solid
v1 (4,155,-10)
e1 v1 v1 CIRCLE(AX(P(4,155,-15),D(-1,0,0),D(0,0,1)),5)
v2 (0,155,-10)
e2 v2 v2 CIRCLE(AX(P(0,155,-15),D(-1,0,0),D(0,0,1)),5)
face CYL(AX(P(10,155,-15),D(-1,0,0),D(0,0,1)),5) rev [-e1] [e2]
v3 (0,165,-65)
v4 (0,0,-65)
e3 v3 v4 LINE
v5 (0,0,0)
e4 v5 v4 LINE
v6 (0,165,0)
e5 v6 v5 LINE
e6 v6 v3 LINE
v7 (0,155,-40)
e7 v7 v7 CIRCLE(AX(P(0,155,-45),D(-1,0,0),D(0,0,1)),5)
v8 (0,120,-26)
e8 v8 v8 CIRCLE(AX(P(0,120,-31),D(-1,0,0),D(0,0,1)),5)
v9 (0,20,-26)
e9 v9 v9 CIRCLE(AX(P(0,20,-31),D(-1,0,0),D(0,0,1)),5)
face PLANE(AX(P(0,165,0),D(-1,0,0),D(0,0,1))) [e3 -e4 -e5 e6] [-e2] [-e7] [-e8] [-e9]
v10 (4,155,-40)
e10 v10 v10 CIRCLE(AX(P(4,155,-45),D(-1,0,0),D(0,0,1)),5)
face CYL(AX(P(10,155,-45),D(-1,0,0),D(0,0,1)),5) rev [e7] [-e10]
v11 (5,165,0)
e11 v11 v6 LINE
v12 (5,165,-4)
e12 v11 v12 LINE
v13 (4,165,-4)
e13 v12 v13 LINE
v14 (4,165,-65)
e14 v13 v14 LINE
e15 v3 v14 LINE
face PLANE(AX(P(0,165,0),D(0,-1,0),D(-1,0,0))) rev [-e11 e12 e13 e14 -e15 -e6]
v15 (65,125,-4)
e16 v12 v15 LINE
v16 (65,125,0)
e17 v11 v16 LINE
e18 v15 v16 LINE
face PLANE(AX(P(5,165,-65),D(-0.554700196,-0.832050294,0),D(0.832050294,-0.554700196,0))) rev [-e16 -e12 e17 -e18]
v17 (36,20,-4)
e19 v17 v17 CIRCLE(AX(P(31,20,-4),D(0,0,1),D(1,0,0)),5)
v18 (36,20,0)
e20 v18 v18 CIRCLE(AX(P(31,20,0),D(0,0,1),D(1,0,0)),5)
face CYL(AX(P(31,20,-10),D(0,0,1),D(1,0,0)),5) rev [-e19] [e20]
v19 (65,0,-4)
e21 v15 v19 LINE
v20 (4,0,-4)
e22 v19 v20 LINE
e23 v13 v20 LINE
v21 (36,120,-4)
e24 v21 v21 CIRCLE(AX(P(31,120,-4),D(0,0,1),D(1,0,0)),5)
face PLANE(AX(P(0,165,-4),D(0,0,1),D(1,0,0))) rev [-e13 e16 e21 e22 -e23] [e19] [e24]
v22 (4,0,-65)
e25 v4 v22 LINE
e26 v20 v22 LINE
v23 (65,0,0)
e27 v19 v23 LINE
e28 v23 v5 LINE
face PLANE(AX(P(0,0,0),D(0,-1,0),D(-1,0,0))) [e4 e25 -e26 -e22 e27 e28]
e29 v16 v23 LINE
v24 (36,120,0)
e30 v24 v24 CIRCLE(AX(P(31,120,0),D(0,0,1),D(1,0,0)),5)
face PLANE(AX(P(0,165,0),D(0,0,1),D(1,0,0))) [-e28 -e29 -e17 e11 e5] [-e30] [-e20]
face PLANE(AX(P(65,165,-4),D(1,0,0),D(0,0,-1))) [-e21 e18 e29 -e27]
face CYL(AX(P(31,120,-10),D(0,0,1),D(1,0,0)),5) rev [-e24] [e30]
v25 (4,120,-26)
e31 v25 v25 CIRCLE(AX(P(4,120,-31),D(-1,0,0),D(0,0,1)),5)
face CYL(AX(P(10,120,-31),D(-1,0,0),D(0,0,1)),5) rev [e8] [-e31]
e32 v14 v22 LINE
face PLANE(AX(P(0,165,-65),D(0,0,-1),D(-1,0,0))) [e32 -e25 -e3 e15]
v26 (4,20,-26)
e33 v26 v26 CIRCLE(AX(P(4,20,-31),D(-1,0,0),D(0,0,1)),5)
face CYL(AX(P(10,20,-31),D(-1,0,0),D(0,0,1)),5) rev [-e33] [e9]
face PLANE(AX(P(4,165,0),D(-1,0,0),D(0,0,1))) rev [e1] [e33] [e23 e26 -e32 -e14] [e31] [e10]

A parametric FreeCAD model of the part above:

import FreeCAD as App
import Part
import Sketcher
from FreeCAD import Vector
Q = App.Units.Quantity

doc = App.newDocument("Part")
params = doc.addObject("Spreadsheet::Sheet", "Params")
for row, (alias, value) in enumerate([
    ("sketch1_width", "65 mm"),
    ("sketch1_width2", "61 mm"),
    ("pad1_length", "165 mm"),
    ("sketch2_diameter", "10 mm"),
    ("pocket1_length", "10 mm"),
    ("sketch3_diameter", "10 mm"),
    ("pocket2_length", "10 mm"),
    ("sketch4_width", "60 mm"),
    ("sketch4_height", "40 mm"),
], start=1):
    params.set(f"A{row}", alias)
    params.set(f"B{row}", "=" + value)
    params.setAlias(f"B{row}", alias)

body = doc.addObject("PartDesign::Body", "Body")

sketch1 = body.newObject("Sketcher::SketchObject", "Sketch")
sketch1.AttachmentSupport = (doc.getObject("XZ_Plane"), [""])
sketch1.MapMode = "FlatFace"
sketch1.addGeometry(Part.LineSegment(Vector(0, -65, 0), Vector(0, 0, 0)), False)
sketch1.addGeometry(Part.LineSegment(Vector(0, 0, 0), Vector(65, 0, 0)), False)
sketch1.addGeometry(Part.LineSegment(Vector(65, 0, 0), Vector(65, -4, 0)), False)
sketch1.addGeometry(Part.LineSegment(Vector(65, -4, 0), Vector(4, -4, 0)), False)
sketch1.addGeometry(Part.LineSegment(Vector(4, -4, 0), Vector(4, -65, 0)), False)
sketch1.addGeometry(Part.LineSegment(Vector(4, -65, 0), Vector(0, -65, 0)), False)
sketch1.addConstraint(Sketcher.Constraint("Coincident", 0, 2, 1, 1))
sketch1.addConstraint(Sketcher.Constraint("Coincident", 1, 2, 2, 1))
sketch1.addConstraint(Sketcher.Constraint("Coincident", 2, 2, 3, 1))
sketch1.addConstraint(Sketcher.Constraint("Coincident", 3, 2, 4, 1))
sketch1.addConstraint(Sketcher.Constraint("Coincident", 4, 2, 5, 1))
sketch1.addConstraint(Sketcher.Constraint("Coincident", 5, 2, 0, 1))
sketch1.addConstraint(Sketcher.Constraint("Vertical", 0))
sketch1.addConstraint(Sketcher.Constraint("Horizontal", 1))
sketch1.addConstraint(Sketcher.Constraint("Vertical", 2))
sketch1.addConstraint(Sketcher.Constraint("Horizontal", 3))
sketch1.addConstraint(Sketcher.Constraint("Vertical", 4))
sketch1.addConstraint(Sketcher.Constraint("Horizontal", 5))
sketch1.addConstraint(Sketcher.Constraint("Coincident", 0, 2, -1, 1))
sketch1.addConstraint(Sketcher.Constraint("Equal", 1, 0))
sketch1.addConstraint(Sketcher.Constraint("Equal", 5, 2))
sketch1.addConstraint(Sketcher.Constraint("DistanceX", 1, 1, 1, 2, Q("65 mm")))
sketch1.addConstraint(Sketcher.Constraint("DistanceX", 3, 2, 3, 1, Q("61 mm")))
sketch1.setExpression("Constraints[15]", "Params.sketch1_width")
sketch1.setExpression("Constraints[16]", "Params.sketch1_width2")
pad1 = body.newObject("PartDesign::Pad", "Pad")
pad1.Profile = sketch1
pad1.setExpression("Length", "Params.pad1_length")
pad1.Reversed = True

sketch2 = body.newObject("Sketcher::SketchObject", "Sketch001")
sketch2.AttachmentSupport = (doc.getObject("XY_Plane"), [""])
sketch2.MapMode = "FlatFace"
sketch2.addGeometry(Part.Circle(Vector(31, 120, 0), Vector(0, 0, 1), 5), False)
sketch2.addGeometry(Part.Circle(Vector(31, 20, 0), Vector(0, 0, 1), 5), False)
sketch2.addConstraint(Sketcher.Constraint("Equal", 0, 1))
sketch2.addConstraint(Sketcher.Constraint("Vertical", 0, 3, 1, 3))
sketch2.addConstraint(Sketcher.Constraint("Diameter", 0, Q("10 mm")))
sketch2.addConstraint(Sketcher.Constraint("DistanceX", -1, 1, 0, 3, Q("31 mm")))
sketch2.addConstraint(Sketcher.Constraint("DistanceY", -1, 1, 0, 3, Q("120 mm")))
sketch2.addConstraint(Sketcher.Constraint("DistanceY", -1, 1, 1, 3, Q("20 mm")))
sketch2.setExpression("Constraints[2]", "Params.sketch2_diameter")
pocket1 = body.newObject("PartDesign::Pocket", "Pocket")
pocket1.Profile = sketch2
pocket1.setExpression("Length", "Params.pocket1_length")

sketch3 = body.newObject("Sketcher::SketchObject", "Sketch002")
sketch3.AttachmentSupport = (doc.getObject("YZ_Plane"), [""])
sketch3.MapMode = "FlatFace"
sketch3.addGeometry(Part.Circle(Vector(120, -31, 0), Vector(0, 0, 1), 5), False)
sketch3.addGeometry(Part.Circle(Vector(20, -31, 0), Vector(0, 0, 1), 5), False)
sketch3.addGeometry(Part.Circle(Vector(155, -15, 0), Vector(0, 0, 1), 5), False)
sketch3.addGeometry(Part.Circle(Vector(155, -45, 0), Vector(0, 0, 1), 5), False)
sketch3.addConstraint(Sketcher.Constraint("Equal", 0, 1))
sketch3.addConstraint(Sketcher.Constraint("Equal", 1, 2))
sketch3.addConstraint(Sketcher.Constraint("Equal", 2, 3))
sketch3.addConstraint(Sketcher.Constraint("Horizontal", 0, 3, 1, 3))
sketch3.addConstraint(Sketcher.Constraint("Vertical", 2, 3, 3, 3))
sketch3.addConstraint(Sketcher.Constraint("Diameter", 0, Q("10 mm")))
sketch3.addConstraint(Sketcher.Constraint("DistanceX", -1, 1, 0, 3, Q("120 mm")))
sketch3.addConstraint(Sketcher.Constraint("DistanceY", 0, 3, -1, 1, Q("31 mm")))
sketch3.addConstraint(Sketcher.Constraint("DistanceX", -1, 1, 1, 3, Q("20 mm")))
sketch3.addConstraint(Sketcher.Constraint("DistanceX", -1, 1, 2, 3, Q("155 mm")))
sketch3.addConstraint(Sketcher.Constraint("DistanceY", 2, 3, -1, 1, Q("15 mm")))
sketch3.addConstraint(Sketcher.Constraint("DistanceY", 3, 3, -1, 1, Q("45 mm")))
sketch3.setExpression("Constraints[5]", "Params.sketch3_diameter")
pocket2 = body.newObject("PartDesign::Pocket", "Pocket001")
pocket2.Profile = sketch3
pocket2.setExpression("Length", "Params.pocket2_length")
pocket2.Reversed = True

sketch4 = body.newObject("Sketcher::SketchObject", "Sketch003")
sketch4.AttachmentSupport = (doc.getObject("XY_Plane"), [""])
sketch4.MapMode = "FlatFace"
sketch4.addGeometry(Part.LineSegment(Vector(5, 165, 0), Vector(65, 125, 0)), False)
sketch4.addGeometry(Part.LineSegment(Vector(65, 125, 0), Vector(65, 165, 0)), False)
sketch4.addGeometry(Part.LineSegment(Vector(65, 165, 0), Vector(5, 165, 0)), False)
sketch4.addConstraint(Sketcher.Constraint("Coincident", 0, 2, 1, 1))
sketch4.addConstraint(Sketcher.Constraint("Coincident", 1, 2, 2, 1))
sketch4.addConstraint(Sketcher.Constraint("Coincident", 2, 2, 0, 1))
sketch4.addConstraint(Sketcher.Constraint("Vertical", 1))
sketch4.addConstraint(Sketcher.Constraint("Horizontal", 2))
sketch4.addConstraint(Sketcher.Constraint("DistanceX", 2, 2, 2, 1, Q("60 mm")))
sketch4.addConstraint(Sketcher.Constraint("DistanceY", 1, 1, 1, 2, Q("40 mm")))
sketch4.addConstraint(Sketcher.Constraint("DistanceX", -1, 1, 0, 2, Q("65 mm")))
sketch4.addConstraint(Sketcher.Constraint("DistanceY", -1, 1, 0, 2, Q("125 mm")))
sketch4.setExpression("Constraints[5]", "Params.sketch4_width")
sketch4.setExpression("Constraints[6]", "Params.sketch4_height")
pocket3 = body.newObject("PartDesign::Pocket", "Pocket002")
pocket3.Profile = sketch4
pocket3.Type = "ThroughAll"

doc.recompute()
